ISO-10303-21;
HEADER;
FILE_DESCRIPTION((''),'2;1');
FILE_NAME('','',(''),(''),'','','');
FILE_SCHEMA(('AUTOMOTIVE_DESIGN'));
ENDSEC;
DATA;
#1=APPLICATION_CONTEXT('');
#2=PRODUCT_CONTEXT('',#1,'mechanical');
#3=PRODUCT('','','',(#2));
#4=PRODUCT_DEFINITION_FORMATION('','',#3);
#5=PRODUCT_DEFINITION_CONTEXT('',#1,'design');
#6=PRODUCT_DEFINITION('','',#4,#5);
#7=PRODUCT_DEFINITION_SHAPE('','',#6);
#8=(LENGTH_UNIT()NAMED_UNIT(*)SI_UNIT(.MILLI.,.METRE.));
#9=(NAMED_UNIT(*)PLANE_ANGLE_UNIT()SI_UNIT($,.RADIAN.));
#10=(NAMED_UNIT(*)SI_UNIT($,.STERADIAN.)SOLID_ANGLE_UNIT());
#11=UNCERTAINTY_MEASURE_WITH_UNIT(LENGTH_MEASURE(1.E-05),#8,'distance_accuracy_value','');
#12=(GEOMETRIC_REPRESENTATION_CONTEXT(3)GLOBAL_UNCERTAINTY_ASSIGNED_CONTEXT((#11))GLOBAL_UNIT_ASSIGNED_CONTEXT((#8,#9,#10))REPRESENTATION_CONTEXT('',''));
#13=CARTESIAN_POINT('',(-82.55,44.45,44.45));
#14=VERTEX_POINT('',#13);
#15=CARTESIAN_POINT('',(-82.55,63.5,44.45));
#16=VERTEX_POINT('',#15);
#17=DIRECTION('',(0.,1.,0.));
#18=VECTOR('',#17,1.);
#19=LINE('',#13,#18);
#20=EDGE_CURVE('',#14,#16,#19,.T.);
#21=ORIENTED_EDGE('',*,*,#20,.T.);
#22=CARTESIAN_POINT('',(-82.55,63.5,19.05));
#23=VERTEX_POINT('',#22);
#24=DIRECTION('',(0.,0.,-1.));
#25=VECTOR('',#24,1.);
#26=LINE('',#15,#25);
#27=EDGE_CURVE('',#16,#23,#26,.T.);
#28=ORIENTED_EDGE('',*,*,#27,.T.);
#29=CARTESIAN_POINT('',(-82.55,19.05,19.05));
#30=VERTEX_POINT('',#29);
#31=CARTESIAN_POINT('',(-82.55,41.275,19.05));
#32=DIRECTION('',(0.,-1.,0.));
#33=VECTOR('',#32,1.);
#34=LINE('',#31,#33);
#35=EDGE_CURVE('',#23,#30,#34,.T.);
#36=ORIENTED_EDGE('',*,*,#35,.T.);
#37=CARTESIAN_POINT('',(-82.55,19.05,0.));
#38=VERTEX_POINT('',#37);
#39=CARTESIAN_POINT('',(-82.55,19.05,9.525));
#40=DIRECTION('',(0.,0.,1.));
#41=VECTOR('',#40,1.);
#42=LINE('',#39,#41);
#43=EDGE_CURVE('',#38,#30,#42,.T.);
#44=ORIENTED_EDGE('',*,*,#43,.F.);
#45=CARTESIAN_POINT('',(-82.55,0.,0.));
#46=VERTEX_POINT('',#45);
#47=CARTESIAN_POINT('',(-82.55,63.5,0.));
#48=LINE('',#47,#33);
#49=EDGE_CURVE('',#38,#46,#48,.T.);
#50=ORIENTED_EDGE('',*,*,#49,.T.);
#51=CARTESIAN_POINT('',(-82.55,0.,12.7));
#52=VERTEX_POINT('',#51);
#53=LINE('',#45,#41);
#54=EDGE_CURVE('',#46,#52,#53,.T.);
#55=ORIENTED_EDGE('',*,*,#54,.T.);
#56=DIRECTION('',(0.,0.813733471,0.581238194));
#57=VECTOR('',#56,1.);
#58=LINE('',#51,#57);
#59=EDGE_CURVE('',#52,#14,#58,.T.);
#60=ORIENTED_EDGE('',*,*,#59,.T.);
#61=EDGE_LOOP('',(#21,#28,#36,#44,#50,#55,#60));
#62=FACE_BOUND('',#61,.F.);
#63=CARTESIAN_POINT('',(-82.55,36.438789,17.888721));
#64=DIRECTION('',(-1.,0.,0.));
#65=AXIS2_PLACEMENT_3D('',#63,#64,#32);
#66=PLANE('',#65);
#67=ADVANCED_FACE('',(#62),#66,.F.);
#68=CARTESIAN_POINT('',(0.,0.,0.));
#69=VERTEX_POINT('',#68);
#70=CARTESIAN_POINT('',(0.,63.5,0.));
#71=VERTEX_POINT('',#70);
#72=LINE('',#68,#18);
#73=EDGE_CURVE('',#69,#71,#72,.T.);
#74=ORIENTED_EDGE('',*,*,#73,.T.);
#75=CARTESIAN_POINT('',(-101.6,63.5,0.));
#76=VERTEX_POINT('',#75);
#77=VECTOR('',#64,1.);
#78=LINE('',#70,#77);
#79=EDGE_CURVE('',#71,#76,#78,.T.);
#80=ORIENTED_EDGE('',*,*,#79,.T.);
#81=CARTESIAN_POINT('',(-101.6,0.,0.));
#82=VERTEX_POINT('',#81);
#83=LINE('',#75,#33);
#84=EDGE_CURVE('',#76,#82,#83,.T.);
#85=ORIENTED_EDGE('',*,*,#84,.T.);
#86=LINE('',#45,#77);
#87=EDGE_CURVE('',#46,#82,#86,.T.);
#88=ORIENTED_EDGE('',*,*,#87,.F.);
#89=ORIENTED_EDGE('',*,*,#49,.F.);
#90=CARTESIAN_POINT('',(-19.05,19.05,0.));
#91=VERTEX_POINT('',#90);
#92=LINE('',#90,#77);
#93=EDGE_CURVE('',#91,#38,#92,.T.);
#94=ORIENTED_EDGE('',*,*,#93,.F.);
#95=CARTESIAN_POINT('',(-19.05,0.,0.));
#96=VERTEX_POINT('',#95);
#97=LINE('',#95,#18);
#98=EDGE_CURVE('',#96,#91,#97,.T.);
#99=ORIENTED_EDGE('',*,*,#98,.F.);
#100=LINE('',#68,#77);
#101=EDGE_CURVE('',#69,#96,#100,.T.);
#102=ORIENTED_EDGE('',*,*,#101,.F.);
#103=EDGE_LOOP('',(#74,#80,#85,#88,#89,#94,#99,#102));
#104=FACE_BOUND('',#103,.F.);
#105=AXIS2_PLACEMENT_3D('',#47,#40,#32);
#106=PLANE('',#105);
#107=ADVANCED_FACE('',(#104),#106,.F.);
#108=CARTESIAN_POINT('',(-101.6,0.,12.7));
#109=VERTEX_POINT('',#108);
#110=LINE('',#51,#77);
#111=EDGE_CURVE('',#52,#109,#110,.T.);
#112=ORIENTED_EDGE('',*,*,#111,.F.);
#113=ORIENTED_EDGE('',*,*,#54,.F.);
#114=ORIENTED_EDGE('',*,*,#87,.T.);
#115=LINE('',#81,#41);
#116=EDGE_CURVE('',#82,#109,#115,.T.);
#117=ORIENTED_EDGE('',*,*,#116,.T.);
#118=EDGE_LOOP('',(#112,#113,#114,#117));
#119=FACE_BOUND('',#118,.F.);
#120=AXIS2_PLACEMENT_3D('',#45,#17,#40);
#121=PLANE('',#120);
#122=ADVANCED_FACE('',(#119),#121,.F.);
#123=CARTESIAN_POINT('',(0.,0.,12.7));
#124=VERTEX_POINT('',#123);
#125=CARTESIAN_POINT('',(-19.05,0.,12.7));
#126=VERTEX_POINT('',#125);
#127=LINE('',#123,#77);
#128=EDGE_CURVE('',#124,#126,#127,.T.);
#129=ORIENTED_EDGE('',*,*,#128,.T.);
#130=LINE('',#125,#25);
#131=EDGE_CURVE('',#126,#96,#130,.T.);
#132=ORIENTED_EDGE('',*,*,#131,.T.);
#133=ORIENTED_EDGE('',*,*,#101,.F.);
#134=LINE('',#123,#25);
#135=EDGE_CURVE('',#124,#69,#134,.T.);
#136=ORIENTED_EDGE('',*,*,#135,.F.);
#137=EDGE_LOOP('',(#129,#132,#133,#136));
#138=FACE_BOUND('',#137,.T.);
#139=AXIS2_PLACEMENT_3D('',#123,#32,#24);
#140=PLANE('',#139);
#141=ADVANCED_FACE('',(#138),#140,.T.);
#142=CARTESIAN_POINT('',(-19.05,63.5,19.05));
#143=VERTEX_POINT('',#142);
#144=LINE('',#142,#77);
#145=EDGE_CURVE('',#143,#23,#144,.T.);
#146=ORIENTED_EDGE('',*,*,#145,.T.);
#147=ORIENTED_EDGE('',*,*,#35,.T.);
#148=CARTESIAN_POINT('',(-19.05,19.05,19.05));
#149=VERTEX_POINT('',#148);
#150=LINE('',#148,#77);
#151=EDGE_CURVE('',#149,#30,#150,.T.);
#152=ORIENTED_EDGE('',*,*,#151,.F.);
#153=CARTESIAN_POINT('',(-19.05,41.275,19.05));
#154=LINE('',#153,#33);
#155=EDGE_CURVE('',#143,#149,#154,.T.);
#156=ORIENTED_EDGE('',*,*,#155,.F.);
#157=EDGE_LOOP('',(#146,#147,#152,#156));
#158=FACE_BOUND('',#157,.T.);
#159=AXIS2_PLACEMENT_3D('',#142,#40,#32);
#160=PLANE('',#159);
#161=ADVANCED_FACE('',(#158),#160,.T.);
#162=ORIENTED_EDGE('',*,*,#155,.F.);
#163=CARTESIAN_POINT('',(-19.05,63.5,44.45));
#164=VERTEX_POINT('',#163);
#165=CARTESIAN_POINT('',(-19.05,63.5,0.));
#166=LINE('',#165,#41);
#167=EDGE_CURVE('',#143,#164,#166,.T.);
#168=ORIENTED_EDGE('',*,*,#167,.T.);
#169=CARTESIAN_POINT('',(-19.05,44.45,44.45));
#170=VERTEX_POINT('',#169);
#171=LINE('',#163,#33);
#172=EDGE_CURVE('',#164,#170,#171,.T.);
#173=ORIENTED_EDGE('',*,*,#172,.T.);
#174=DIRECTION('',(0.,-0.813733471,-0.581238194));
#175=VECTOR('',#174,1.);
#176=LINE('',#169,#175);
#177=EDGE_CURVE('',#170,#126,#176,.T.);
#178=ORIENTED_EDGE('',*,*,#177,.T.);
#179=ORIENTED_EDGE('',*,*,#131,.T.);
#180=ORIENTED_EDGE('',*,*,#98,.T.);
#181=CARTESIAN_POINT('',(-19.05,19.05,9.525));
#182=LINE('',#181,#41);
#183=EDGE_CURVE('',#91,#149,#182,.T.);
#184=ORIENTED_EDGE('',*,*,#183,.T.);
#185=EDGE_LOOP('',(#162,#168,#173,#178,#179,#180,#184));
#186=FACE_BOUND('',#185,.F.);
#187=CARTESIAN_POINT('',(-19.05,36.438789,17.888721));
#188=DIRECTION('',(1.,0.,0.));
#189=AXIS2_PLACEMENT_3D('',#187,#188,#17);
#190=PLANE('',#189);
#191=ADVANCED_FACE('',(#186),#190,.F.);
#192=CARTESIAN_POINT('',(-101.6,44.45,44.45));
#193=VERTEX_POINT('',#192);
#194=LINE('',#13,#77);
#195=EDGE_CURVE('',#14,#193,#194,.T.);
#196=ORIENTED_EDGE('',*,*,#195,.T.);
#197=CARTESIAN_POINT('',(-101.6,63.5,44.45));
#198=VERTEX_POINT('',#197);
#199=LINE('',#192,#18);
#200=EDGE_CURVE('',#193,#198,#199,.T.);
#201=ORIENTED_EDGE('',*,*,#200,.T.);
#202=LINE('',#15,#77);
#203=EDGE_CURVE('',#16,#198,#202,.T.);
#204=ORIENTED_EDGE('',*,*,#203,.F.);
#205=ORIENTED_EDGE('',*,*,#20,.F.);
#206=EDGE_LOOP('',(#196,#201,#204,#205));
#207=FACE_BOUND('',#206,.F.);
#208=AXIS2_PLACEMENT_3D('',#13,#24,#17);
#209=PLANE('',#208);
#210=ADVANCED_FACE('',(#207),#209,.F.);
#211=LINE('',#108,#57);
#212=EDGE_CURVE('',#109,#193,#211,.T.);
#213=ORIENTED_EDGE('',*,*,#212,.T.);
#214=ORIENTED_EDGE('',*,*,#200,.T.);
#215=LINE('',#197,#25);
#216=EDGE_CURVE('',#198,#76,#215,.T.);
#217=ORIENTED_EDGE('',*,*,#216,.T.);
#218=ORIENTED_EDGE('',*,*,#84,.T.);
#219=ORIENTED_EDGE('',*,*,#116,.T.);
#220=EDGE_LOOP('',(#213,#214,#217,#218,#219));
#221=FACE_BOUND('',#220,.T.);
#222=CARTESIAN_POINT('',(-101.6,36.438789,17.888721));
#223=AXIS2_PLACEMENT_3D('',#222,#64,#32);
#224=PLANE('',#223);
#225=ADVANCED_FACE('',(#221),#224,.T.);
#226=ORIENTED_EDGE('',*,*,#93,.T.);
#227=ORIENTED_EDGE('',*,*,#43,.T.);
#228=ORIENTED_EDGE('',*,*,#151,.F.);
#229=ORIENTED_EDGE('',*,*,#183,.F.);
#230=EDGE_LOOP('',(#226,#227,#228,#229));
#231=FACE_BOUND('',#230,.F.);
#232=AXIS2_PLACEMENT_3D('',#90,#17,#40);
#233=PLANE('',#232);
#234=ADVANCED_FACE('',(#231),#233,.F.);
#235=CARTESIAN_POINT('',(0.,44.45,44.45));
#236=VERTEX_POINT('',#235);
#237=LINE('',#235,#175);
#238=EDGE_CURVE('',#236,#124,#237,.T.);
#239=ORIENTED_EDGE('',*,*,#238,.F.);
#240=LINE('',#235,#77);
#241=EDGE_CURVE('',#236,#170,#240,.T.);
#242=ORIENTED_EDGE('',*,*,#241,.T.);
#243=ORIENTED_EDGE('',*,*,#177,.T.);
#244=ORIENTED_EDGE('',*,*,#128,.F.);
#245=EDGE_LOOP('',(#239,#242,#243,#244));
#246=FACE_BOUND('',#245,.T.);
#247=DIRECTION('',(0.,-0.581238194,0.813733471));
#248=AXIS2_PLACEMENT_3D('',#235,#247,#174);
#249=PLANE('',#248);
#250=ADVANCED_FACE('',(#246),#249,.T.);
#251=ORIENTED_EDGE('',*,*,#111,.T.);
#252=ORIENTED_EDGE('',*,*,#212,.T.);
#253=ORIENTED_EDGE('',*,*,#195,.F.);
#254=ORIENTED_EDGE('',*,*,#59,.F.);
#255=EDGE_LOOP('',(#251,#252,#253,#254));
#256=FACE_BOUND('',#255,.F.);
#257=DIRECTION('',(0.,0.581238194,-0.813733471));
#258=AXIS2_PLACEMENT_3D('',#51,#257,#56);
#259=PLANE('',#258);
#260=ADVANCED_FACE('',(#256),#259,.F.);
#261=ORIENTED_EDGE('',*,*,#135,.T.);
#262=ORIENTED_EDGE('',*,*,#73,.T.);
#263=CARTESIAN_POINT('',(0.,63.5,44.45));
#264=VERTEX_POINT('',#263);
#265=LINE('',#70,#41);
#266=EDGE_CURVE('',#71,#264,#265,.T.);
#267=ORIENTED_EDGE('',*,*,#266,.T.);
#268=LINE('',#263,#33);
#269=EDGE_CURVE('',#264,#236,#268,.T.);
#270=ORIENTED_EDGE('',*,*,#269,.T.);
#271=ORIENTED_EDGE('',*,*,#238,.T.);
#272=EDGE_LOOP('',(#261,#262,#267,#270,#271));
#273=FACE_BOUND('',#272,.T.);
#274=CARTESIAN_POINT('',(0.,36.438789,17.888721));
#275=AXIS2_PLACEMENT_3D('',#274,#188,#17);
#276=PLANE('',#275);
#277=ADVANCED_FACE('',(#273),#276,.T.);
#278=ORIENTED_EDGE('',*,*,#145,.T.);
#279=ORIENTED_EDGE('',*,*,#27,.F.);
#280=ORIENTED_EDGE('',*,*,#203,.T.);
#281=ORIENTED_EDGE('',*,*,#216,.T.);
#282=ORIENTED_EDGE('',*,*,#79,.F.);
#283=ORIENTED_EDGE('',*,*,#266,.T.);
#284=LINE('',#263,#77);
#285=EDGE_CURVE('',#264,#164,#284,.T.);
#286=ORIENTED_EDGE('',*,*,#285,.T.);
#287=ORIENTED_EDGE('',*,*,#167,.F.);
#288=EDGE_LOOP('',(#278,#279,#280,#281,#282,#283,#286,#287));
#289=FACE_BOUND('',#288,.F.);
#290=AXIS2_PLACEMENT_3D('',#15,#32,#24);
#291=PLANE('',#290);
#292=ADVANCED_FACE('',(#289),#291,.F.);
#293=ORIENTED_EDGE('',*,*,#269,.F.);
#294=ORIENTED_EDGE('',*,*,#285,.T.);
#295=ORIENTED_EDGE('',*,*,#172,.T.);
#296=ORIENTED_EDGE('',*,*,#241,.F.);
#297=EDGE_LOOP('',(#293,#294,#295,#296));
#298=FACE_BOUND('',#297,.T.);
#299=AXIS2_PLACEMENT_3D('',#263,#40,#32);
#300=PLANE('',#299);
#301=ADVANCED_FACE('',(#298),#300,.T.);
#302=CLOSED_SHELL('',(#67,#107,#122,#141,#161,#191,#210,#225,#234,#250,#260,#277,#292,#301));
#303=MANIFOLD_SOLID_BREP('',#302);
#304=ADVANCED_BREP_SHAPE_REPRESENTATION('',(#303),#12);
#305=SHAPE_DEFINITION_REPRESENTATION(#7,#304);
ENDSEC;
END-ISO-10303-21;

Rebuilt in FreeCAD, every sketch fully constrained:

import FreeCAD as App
import Part
import Sketcher

V = App.Vector
Q = App.Units.Quantity

doc = App.newDocument("Part")
params = doc.addObject("Spreadsheet::Sheet", "Params")
for row, (alias, value) in enumerate([
    ("sketch1_width", "2.5 in"),
    ("sketch1_height", "0.5 in"),
    ("sketch1_width2", "0.75 in"),
    ("sketch1_height2", "1.75 in"),
    ("pad1_length", "0.75 in"),
    ("sketch2_width", "1.75 in"),
    ("sketch2_height", "0.75 in"),
    ("pad2_length", "2.5 in"),
    ("sketch3_width", "2.5 in"),
    ("sketch3_height", "0.5 in"),
    ("sketch3_width2", "0.75 in"),
    ("sketch3_height2", "1.75 in"),
    ("pad3_length", "0.75 in"),
], start=1):
    params.set(f"A{row}", alias)
    params.set(f"B{row}", "=" + value)
    params.setAlias(f"B{row}", alias)

body = doc.addObject("PartDesign::Body", "Body")

# Sketch on YZ plane
sketch1 = doc.addObject("Sketcher::SketchObject", "Sketch")
body.addObject(sketch1)
sketch1.AttachmentSupport = (doc.YZ_Plane, [""])
sketch1.MapMode = "FlatFace"
sketch1.addGeometry([
    Part.LineSegment(V(0, 13, 0), V(0, 0, 0)),  # 0
    Part.LineSegment(V(0, 0, 0), V(64, 0, 0)),  # 1
    Part.LineSegment(V(64, 0, 0), V(64, 44, 0)),  # 2
    Part.LineSegment(V(64, 44, 0), V(44, 44, 0)),  # 3
    Part.LineSegment(V(44, 44, 0), V(0, 13, 0)),  # 4
], False)
sketch1.addConstraint([
    Sketcher.Constraint("Coincident", 0, 2, 1, 1),
    Sketcher.Constraint("Coincident", 1, 2, 2, 1),
    Sketcher.Constraint("Coincident", 2, 2, 3, 1),
    Sketcher.Constraint("Coincident", 3, 2, 4, 1),
    Sketcher.Constraint("Coincident", 4, 2, 0, 1),
    Sketcher.Constraint("Vertical", 0),
    Sketcher.Constraint("Horizontal", 1),
    Sketcher.Constraint("Vertical", 2),
    Sketcher.Constraint("Horizontal", 3),
    Sketcher.Constraint("Coincident", 0, 2, -1, 1),
    Sketcher.Constraint("DistanceX", 1, 1, 1, 2, Q("2.5 in")),
    Sketcher.Constraint("DistanceY", 0, 2, 0, 1, Q("0.5 in")),
    Sketcher.Constraint("DistanceX", 3, 2, 3, 1, Q("0.75 in")),
    Sketcher.Constraint("DistanceY", 2, 1, 2, 2, Q("1.75 in")),
])
sketch1.setExpression("Constraints[10]", "Params.sketch1_width")
sketch1.setExpression("Constraints[11]", "Params.sketch1_height")
sketch1.setExpression("Constraints[12]", "Params.sketch1_width2")
sketch1.setExpression("Constraints[13]", "Params.sketch1_height2")
pad1 = doc.addObject("PartDesign::Pad", "Pad")
body.addObject(pad1)
pad1.Profile = sketch1
pad1.setExpression("Length", "Params.pad1_length")
pad1.Reversed = True

# Sketch on YZ plane
sketch2 = doc.addObject("Sketcher::SketchObject", "Sketch001")
body.addObject(sketch2)
sketch2.AttachmentSupport = (doc.YZ_Plane, [""])
sketch2.MapMode = "FlatFace"
sketch2.AttachmentOffset = App.Placement(V(0, 0, -0.75 * 25.4), App.Rotation())
sketch2.addGeometry([
    Part.LineSegment(V(64, 19, 0), V(64, 0, 0)),
    Part.LineSegment(V(64, 0, 0), V(19, 0, 0)),
    Part.LineSegment(V(19, 0, 0), V(19, 19, 0)),
    Part.LineSegment(V(19, 19, 0), V(64, 19, 0)),
], False)
sketch2.addConstraint([
    Sketcher.Constraint("Coincident", 0, 2, 1, 1),
    Sketcher.Constraint("Coincident", 1, 2, 2, 1),
    Sketcher.Constraint("Coincident", 2, 2, 3, 1),
    Sketcher.Constraint("Coincident", 3, 2, 0, 1),
    Sketcher.Constraint("Vertical", 0),
    Sketcher.Constraint("Horizontal", 1),
    Sketcher.Constraint("Vertical", 2),
    Sketcher.Constraint("Horizontal", 3),
    Sketcher.Constraint("PointOnObject", 0, 2, -1),
    Sketcher.Constraint("DistanceX", 1, 2, 1, 1, Q("1.75 in")),
    Sketcher.Constraint("DistanceY", 0, 2, 0, 1, Q("0.75 in")),
    Sketcher.Constraint("DistanceX", -1, 1, 0, 2, Q("2.5 in")),
])
sketch2.setExpression("Constraints[9]", "Params.sketch2_width")
sketch2.setExpression("Constraints[10]", "Params.sketch2_height")
pad2 = doc.addObject("PartDesign::Pad", "Pad001")
body.addObject(pad2)
pad2.Profile = sketch2
pad2.setExpression("Length", "Params.pad2_length")
pad2.Reversed = True

# Sketch on YZ plane
sketch3 = doc.addObject("Sketcher::SketchObject", "Sketch002")
body.addObject(sketch3)
sketch3.AttachmentSupport = (doc.YZ_Plane, [""])
sketch3.MapMode = "FlatFace"
sketch3.AttachmentOffset = App.Placement(V(0, 0, -3.25 * 25.4), App.Rotation())
sketch3.addGeometry([
    Part.LineSegment(V(64, 44, 0), V(64, 0, 0)),  # 0
    Part.LineSegment(V(64, 0, 0), V(0, 0, 0)),  # 1
    Part.LineSegment(V(0, 0, 0), V(0, 13, 0)),  # 2
    Part.LineSegment(V(0, 13, 0), V(44, 44, 0)),  # 3
    Part.LineSegment(V(44, 44, 0), V(64, 44, 0)),  # 4
], False)
sketch3.addConstraint([
    Sketcher.Constraint("Coincident", 0, 2, 1, 1),
    Sketcher.Constraint("Coincident", 1, 2, 2, 1),
    Sketcher.Constraint("Coincident", 2, 2, 3, 1),
    Sketcher.Constraint("Coincident", 3, 2, 4, 1),
    Sketcher.Constraint("Coincident", 4, 2, 0, 1),
    Sketcher.Constraint("Vertical", 0),
    Sketcher.Constraint("Horizontal", 1),
    Sketcher.Constraint("Vertical", 2),
    Sketcher.Constraint("Horizontal", 4),
    Sketcher.Constraint("Coincident", 1, 2, -1, 1),
    Sketcher.Constraint("DistanceX", 1, 2, 1, 1, Q("2.5 in")),
    Sketcher.Constraint("DistanceY", 2, 1, 2, 2, Q("0.5 in")),
    Sketcher.Constraint("DistanceX", 4, 1, 4, 2, Q("0.75 in")),
    Sketcher.Constraint("DistanceY", 0, 2, 0, 1, Q("1.75 in")),
])
sketch3.setExpression("Constraints[10]", "Params.sketch3_width")
sketch3.setExpression("Constraints[11]", "Params.sketch3_height")
sketch3.setExpression("Constraints[12]", "Params.sketch3_width2")
sketch3.setExpression("Constraints[13]", "Params.sketch3_height2")
pad3 = doc.addObject("PartDesign::Pad", "Pad002")
body.addObject(pad3)
pad3.Profile = sketch3
pad3.setExpression("Length", "Params.pad3_length")
pad3.Reversed = True

doc.recompute()
